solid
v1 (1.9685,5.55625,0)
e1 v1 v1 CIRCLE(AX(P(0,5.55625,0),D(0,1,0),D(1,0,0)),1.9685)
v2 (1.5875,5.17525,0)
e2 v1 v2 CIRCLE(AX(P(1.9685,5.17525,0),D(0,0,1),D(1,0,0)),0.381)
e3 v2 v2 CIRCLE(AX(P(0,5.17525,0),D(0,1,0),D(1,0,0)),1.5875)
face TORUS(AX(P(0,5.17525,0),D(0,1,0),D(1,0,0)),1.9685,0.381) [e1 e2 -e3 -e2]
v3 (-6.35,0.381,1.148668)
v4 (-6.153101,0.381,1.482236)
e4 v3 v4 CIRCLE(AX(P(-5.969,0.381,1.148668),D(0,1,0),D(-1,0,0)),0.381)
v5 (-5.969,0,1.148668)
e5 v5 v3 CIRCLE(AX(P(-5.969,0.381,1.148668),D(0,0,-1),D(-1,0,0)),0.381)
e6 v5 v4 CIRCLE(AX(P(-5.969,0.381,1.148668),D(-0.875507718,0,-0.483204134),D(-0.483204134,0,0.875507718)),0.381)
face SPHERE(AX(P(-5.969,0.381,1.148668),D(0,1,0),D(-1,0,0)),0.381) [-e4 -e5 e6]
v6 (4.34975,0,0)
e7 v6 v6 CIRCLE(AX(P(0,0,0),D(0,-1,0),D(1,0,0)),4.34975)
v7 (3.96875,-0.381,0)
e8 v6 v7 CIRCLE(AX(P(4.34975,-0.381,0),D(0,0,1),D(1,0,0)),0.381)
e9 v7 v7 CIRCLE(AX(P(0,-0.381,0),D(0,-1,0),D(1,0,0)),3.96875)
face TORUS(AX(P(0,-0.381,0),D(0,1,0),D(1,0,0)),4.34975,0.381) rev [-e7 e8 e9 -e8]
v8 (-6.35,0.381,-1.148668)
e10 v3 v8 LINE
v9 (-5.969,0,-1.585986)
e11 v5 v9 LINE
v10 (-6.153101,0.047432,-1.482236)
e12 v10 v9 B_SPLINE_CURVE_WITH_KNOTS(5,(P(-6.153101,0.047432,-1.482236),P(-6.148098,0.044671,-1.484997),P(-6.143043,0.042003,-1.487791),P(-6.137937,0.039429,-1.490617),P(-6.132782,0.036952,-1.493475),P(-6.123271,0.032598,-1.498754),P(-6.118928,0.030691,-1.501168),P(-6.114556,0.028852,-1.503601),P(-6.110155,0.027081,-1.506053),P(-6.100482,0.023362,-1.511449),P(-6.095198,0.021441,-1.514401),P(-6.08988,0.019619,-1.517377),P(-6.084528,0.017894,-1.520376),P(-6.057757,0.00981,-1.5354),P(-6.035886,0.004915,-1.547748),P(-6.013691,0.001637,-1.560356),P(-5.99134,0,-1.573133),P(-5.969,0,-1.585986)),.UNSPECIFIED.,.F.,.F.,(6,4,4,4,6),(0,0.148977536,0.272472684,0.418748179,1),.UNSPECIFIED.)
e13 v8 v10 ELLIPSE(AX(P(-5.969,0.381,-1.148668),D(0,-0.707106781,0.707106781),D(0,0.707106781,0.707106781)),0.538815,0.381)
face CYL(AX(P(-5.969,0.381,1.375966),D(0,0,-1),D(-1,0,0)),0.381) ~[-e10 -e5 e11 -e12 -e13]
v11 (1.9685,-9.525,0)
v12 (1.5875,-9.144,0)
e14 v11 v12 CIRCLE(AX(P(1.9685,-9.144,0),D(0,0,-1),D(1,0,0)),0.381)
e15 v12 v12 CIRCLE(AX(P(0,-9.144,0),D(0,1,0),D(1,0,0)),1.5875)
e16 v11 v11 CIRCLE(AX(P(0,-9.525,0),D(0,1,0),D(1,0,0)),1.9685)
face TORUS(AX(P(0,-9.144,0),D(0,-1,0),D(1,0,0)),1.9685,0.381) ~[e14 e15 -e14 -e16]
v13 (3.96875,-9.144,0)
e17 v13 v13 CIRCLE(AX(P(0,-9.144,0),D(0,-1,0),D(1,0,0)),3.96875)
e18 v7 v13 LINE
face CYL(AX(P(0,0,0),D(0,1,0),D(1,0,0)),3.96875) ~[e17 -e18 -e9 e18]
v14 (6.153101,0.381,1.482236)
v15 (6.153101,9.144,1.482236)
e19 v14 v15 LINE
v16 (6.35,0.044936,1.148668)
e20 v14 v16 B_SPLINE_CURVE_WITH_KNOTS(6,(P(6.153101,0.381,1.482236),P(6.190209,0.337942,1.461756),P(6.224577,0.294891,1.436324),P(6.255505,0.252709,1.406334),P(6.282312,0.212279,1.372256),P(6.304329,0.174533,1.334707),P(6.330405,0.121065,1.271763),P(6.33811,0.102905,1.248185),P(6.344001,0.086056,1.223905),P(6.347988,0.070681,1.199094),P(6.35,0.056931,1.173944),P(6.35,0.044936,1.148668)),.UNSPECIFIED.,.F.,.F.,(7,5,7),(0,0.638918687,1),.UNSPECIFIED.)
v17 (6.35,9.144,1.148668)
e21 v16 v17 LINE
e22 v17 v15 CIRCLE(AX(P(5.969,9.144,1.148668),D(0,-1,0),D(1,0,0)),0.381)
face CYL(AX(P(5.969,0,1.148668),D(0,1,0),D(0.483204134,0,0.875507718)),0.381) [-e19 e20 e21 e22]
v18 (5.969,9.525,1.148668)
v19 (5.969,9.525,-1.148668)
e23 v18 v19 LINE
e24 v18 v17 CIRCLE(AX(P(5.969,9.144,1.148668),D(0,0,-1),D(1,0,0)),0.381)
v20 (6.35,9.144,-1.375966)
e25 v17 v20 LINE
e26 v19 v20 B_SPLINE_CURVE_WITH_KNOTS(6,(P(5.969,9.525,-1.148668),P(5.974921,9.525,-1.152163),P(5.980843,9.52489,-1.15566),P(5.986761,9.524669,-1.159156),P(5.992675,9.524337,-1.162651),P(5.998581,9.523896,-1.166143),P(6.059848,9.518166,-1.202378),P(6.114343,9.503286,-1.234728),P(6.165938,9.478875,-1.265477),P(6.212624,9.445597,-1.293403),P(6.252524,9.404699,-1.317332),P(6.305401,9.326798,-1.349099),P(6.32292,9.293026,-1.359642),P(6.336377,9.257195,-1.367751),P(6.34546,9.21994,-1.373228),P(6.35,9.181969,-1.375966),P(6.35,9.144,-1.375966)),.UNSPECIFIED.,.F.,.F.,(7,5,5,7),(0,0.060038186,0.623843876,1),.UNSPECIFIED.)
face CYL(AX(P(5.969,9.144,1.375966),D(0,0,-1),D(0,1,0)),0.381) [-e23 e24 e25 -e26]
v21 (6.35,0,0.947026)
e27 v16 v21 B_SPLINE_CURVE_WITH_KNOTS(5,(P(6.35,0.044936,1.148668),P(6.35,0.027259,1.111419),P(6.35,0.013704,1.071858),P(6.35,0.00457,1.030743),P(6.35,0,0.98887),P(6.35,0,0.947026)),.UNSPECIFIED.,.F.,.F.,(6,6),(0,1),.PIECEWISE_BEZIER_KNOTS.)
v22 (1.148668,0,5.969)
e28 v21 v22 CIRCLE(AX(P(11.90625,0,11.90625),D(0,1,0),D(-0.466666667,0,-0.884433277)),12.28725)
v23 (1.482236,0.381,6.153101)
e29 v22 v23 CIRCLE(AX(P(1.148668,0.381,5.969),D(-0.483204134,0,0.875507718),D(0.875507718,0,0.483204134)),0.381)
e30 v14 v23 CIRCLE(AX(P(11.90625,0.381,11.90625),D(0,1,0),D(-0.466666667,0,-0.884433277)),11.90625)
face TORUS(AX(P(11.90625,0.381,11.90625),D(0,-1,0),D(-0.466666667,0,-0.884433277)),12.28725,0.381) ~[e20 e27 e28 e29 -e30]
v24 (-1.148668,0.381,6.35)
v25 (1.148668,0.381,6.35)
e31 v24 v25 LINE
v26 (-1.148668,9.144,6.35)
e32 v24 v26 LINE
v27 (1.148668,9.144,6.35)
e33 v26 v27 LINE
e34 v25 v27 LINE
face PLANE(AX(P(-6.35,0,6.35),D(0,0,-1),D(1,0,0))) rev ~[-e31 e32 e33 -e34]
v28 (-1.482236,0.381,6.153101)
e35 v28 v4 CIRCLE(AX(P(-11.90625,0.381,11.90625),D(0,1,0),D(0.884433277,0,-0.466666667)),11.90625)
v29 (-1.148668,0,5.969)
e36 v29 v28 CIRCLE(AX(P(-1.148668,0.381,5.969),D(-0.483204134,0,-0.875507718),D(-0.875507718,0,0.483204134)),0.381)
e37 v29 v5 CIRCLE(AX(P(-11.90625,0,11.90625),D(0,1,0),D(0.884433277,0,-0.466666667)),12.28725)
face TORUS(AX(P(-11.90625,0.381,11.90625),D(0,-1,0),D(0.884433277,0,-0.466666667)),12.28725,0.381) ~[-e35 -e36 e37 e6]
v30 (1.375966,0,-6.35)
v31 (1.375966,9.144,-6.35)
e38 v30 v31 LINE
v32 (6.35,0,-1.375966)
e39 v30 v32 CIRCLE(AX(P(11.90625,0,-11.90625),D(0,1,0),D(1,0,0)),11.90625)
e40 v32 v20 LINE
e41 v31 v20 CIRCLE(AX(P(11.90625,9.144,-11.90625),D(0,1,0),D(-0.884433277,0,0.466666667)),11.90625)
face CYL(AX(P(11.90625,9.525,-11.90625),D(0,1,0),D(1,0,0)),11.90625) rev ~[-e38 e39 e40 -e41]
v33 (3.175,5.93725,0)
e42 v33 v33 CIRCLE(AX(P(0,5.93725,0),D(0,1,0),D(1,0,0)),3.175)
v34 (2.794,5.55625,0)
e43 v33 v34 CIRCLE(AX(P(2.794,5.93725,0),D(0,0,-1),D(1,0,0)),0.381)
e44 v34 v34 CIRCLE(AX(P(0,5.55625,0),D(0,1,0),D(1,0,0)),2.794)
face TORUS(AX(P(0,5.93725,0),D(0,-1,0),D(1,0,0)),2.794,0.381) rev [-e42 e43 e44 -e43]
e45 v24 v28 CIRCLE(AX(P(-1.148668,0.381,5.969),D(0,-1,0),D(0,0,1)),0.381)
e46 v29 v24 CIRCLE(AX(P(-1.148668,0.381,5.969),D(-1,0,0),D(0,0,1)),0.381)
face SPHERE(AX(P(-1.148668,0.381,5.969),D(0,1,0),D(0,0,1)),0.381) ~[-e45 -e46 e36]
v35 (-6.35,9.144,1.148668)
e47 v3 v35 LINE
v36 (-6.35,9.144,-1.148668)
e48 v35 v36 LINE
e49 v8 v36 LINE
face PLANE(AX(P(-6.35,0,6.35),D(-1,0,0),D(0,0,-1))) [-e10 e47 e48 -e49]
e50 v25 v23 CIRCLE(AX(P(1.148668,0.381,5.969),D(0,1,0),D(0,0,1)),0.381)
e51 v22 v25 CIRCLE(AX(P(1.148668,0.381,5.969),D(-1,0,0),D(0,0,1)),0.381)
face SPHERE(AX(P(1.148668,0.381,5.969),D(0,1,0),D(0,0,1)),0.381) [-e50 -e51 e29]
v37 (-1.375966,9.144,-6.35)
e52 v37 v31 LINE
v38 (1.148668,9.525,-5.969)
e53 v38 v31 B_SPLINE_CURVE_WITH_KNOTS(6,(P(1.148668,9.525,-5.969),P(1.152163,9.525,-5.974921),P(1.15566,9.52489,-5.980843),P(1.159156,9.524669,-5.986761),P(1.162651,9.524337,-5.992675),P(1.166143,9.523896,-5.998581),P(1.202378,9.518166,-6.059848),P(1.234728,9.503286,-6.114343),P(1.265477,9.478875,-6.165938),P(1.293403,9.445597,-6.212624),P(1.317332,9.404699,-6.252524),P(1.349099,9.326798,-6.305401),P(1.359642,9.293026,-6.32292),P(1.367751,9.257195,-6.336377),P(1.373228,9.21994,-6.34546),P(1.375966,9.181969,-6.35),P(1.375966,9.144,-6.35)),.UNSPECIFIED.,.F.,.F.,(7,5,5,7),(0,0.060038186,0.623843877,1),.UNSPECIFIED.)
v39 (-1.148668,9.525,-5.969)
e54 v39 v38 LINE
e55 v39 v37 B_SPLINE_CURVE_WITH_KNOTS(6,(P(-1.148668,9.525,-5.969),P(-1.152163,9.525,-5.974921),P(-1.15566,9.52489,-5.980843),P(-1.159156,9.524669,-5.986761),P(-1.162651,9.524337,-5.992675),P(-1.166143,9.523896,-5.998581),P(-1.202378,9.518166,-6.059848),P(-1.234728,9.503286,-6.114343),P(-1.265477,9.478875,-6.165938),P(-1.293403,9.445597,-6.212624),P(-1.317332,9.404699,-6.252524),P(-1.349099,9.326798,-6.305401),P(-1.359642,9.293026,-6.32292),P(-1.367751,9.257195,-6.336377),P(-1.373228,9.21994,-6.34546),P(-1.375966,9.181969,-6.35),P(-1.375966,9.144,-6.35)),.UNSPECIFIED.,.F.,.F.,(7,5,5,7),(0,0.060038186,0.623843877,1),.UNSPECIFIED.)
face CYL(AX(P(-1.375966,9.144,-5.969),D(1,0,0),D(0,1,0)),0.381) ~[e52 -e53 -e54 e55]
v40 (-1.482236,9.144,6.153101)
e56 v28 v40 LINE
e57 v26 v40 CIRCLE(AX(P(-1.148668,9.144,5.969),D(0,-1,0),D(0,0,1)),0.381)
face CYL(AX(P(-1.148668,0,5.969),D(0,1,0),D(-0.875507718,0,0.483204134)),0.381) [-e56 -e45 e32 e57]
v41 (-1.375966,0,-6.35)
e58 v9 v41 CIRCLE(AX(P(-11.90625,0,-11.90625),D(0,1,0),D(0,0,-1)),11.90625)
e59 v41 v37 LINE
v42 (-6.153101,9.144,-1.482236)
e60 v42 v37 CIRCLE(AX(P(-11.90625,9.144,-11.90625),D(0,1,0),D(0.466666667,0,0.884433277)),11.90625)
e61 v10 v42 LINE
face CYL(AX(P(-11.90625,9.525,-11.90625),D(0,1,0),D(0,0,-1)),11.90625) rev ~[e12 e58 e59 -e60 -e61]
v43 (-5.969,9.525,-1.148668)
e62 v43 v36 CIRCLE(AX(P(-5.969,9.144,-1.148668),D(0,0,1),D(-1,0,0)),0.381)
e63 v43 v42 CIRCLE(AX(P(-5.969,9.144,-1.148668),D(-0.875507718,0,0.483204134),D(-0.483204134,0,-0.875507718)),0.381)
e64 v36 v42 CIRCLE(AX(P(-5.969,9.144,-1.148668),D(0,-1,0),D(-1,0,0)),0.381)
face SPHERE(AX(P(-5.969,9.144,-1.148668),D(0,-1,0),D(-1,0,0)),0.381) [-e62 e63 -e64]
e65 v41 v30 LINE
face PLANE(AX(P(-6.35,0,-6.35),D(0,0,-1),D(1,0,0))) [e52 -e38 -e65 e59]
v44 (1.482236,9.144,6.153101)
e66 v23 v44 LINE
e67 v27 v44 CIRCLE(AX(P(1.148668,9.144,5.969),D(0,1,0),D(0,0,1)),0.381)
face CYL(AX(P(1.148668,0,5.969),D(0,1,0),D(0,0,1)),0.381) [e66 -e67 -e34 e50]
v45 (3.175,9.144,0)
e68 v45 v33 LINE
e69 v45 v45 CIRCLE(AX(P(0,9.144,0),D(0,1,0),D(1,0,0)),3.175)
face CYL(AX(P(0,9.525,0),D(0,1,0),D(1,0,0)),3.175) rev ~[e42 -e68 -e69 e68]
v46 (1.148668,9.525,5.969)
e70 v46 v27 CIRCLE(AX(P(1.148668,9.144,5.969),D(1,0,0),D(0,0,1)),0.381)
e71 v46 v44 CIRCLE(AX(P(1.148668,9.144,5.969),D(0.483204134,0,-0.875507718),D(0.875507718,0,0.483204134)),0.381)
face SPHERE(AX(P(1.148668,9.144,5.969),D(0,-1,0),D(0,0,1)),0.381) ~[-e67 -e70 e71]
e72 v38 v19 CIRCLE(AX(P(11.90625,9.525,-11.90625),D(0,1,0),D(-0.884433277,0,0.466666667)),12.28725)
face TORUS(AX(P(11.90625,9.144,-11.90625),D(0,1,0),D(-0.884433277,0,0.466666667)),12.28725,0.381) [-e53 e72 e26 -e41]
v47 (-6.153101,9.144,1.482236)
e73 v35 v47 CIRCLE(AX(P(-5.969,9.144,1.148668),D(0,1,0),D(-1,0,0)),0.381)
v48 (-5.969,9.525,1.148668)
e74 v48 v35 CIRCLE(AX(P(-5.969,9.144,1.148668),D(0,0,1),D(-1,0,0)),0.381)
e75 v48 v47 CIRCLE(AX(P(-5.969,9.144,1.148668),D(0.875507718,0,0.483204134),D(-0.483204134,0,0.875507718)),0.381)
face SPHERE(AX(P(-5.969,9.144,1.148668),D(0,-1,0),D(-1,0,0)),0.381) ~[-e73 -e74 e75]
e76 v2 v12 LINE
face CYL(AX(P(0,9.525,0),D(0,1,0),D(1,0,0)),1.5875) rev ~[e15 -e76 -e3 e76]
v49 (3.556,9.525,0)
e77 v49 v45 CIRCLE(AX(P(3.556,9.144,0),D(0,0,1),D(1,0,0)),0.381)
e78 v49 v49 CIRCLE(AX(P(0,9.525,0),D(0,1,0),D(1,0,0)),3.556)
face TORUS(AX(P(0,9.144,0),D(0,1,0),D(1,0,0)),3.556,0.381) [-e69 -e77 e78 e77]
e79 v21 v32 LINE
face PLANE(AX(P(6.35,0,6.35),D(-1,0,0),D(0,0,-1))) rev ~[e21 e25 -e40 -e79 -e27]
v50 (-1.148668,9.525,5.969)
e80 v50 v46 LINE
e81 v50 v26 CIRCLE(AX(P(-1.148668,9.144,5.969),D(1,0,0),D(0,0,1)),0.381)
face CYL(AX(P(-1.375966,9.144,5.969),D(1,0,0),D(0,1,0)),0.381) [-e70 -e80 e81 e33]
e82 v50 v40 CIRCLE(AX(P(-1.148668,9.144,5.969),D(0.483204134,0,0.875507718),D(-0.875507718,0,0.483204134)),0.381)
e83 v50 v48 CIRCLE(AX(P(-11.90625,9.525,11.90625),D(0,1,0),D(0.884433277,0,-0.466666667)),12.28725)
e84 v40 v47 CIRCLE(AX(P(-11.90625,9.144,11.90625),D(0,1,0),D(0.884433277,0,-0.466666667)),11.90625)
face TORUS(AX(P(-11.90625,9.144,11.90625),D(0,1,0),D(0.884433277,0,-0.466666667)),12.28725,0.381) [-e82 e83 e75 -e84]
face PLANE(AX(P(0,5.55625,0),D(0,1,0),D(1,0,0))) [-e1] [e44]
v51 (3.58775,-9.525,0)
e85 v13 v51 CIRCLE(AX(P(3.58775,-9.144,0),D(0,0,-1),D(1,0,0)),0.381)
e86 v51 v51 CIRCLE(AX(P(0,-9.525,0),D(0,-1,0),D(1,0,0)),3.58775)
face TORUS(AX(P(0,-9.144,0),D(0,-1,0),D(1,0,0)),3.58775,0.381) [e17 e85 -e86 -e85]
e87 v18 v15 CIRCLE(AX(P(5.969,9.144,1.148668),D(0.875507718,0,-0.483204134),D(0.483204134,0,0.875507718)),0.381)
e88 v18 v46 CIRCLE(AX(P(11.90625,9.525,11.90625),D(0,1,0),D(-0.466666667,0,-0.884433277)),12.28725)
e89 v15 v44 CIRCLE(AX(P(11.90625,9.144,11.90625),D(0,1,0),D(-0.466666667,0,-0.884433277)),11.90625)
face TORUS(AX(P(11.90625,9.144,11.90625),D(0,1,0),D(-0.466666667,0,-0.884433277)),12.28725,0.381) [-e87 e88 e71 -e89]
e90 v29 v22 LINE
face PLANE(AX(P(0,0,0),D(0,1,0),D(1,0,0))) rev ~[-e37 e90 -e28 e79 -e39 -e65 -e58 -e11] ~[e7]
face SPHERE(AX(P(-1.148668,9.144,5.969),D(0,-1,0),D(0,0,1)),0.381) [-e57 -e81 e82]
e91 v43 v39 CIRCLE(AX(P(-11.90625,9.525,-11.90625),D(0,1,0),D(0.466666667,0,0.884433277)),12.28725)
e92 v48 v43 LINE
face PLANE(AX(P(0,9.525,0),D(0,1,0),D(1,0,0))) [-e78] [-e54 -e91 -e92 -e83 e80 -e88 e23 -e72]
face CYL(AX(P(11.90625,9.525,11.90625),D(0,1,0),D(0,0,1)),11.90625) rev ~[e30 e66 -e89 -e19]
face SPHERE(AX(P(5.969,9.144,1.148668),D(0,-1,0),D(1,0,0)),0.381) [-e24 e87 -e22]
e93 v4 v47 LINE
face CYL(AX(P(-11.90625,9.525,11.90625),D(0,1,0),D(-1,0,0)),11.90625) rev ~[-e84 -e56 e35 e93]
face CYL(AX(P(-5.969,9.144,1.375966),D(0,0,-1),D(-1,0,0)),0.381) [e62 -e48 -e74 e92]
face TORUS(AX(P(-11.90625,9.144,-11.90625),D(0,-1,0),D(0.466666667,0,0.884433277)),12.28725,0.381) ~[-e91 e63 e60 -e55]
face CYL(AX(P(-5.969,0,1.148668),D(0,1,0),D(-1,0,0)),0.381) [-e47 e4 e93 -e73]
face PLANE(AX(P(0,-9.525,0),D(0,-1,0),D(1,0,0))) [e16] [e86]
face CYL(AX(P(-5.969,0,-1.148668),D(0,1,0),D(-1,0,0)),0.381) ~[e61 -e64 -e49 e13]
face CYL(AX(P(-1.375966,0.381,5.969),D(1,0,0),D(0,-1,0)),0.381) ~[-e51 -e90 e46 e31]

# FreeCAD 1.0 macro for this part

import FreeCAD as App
import Part
import Sketcher
Q = App.Units.Quantity


def edges_at(feature, points):
    """Names of the edges that pass closest to the given points."""
    edges = feature.Shape.Edges
    near = lambda p: min(range(len(edges)), key=lambda i: edges[i].distToShape(Part.Vertex(*p))[0])
    return sorted({f"Edge{near(p) + 1}" for p in points})

doc = App.newDocument("Part")
body = doc.addObject("PartDesign::Body", "Body")

# Sketch on XZ plane
sketch1 = body.newObject("Sketcher::SketchObject", "Sketch")
sketch1.AttachmentSupport = (doc.getObject("XZ_Plane"), [""])
sketch1.MapMode = "FlatFace"
sketch1.addGeometry(Part.LineSegment(App.Vector(-6, -6, 0), App.Vector(-6, 6, 0)), False)
sketch1.addGeometry(Part.LineSegment(App.Vector(-6, 6, 0), App.Vector(6, 6, 0)), False)
sketch1.addGeometry(Part.LineSegment(App.Vector(6, 6, 0), App.Vector(6, -6, 0)), False)
sketch1.addGeometry(Part.LineSegment(App.Vector(6, -6, 0), App.Vector(-6, -6, 0)), False)
sketch1.addConstraint(Sketcher.Constraint("Coincident", 0, 2, 1, 1))
sketch1.addConstraint(Sketcher.Constraint("Coincident", 1, 2, 2, 1))
sketch1.addConstraint(Sketcher.Constraint("Coincident", 2, 2, 3, 1))
sketch1.addConstraint(Sketcher.Constraint("Coincident", 3, 2, 0, 1))
sketch1.addConstraint(Sketcher.Constraint("Vertical", 0))
sketch1.addConstraint(Sketcher.Constraint("Horizontal", 1))
sketch1.addConstraint(Sketcher.Constraint("Vertical", 2))
sketch1.addConstraint(Sketcher.Constraint("Horizontal", 3))
sketch1.addConstraint(Sketcher.Constraint("Symmetric", 0, 2, 2, 2, -1, 1))
sketch1.addConstraint(Sketcher.Constraint("Equal", 3, 0))
sketch1.addConstraint(Sketcher.Constraint("DistanceX", 1, 1, 1, 2, Q("0.5 in")))
pad1 = body.newObject("PartDesign::Pad", "Pad")
pad1.Profile = sketch1
pad1.Length = Q("0.375 in")
pad1.Reversed = True

# Sketch on XZ plane
sketch2 = body.newObject("Sketcher::SketchObject", "Sketch001")
sketch2.AttachmentSupport = (doc.getObject("XZ_Plane"), [""])
sketch2.MapMode = "FlatFace"
sketch2.AttachmentOffset = App.Placement(App.Vector(0, 0, -0.375 * 25.4), App.Rotation())
sketch2.addGeometry(Part.Circle(App.Vector(12, -12, 0), App.Vector(0, 0, 1), 12), False)
sketch2.addConstraint(Sketcher.Constraint("Diameter", 0, Q("0.9375 in")))
sketch2.addConstraint(Sketcher.Constraint("DistanceX", -1, 1, 0, 3, Q("0.46875 in")))
sketch2.addConstraint(Sketcher.Constraint("DistanceY", 0, 3, -1, 1, Q("0.46875 in")))
pocket1 = body.newObject("PartDesign::Pocket", "Pocket")
pocket1.Profile = sketch2
pocket1.Type = "ThroughAll"
pocket1.Reversed = True
doc.recompute()

polarpattern = body.newObject("PartDesign::PolarPattern", "PolarPattern")
polarpattern.Originals = [pocket1]
polarpattern.Axis = (doc.getObject("Y_Axis"), [""])
polarpattern.Angle = 360
polarpattern.Occurrences = 4
body.Tip = polarpattern

# Sketch on XZ plane
sketch3 = body.newObject("Sketcher::SketchObject", "Sketch002")
sketch3.AttachmentSupport = (doc.getObject("XZ_Plane"), [""])
sketch3.MapMode = "FlatFace"
sketch3.addGeometry(Part.Circle(App.Vector(0, 0, 0), App.Vector(0, 0, 1), 4), False)
sketch3.addConstraint(Sketcher.Constraint("Coincident", 0, 3, -1, 1))
sketch3.addConstraint(Sketcher.Constraint("Diameter", 0, Q("0.3125 in")))
pad2 = body.newObject("PartDesign::Pad", "Pad001")
pad2.Profile = sketch3
pad2.Length = Q("0.375 in")

# Sketch on XZ plane
sketch4 = body.newObject("Sketcher::SketchObject", "Sketch003")
sketch4.AttachmentSupport = (doc.getObject("XZ_Plane"), [""])
sketch4.MapMode = "FlatFace"
sketch4.AttachmentOffset = App.Placement(App.Vector(0, 0, -0.375 * 25.4), App.Rotation())
sketch4.addGeometry(Part.Circle(App.Vector(0, 0, 0), App.Vector(0, 0, 1), 1.6), False)
sketch4.addConstraint(Sketcher.Constraint("Coincident", 0, 3, -1, 1))
sketch4.addConstraint(Sketcher.Constraint("Diameter", 0, Q("0.125 in")))
pocket2 = body.newObject("PartDesign::Pocket", "Pocket001")
pocket2.Profile = sketch4
pocket2.Type = "ThroughAll"
pocket2.Reversed = True

# Sketch on XZ plane
sketch5 = body.newObject("Sketcher::SketchObject", "Sketch004")
sketch5.AttachmentSupport = (doc.getObject("XZ_Plane"), [""])
sketch5.MapMode = "FlatFace"
sketch5.AttachmentOffset = App.Placement(App.Vector(0, 0, -0.375 * 25.4), App.Rotation())
sketch5.addGeometry(Part.Circle(App.Vector(0, 0, 0), App.Vector(0, 0, 1), 3.2), False)
sketch5.addConstraint(Sketcher.Constraint("Coincident", 0, 3, -1, 1))
sketch5.addConstraint(Sketcher.Constraint("Diameter", 0, Q("0.25 in")))
pocket3 = body.newObject("PartDesign::Pocket", "Pocket002")
pocket3.Profile = sketch5
pocket3.Length = Q("0.15625 in")
pocket3.Reversed = True
doc.recompute()

fillet = body.newObject("PartDesign::Fillet", "Fillet")
fillet.Base = (pocket3, edges_at(pocket3, [
    (0, 9.525, -6.35),
    (3.487, 9.525, -3.487),
    (6.35, 9.525, 0),
    (3.487, 9.525, 3.487),
    (6.35, 4.763, 1.376),
    (3.487, 0, 3.487),
    (1.376, 4.763, 6.35),
    (0, 0, 6.35),
    (0, 9.525, 6.35),
    (-3.487, 9.525, 3.487),
    (-3.487, 0, 3.487),
    (-6.35, 4.763, 1.376),
    (-1.376, 4.763, 6.35),
    (-6.35, 0, 0),
    (-6.35, 9.525, 0),
    (-3.487, 9.525, -3.487),
    (-6.35, 4.763, -1.376),
    (-3.969, 0, 0),
    (-3.969, -9.525, 0),
    (-1.587, -9.525, 0),
    (-3.175, 9.525, 0),
    (-3.175, 5.556, 0),
    (-1.587, 5.556, 0),
]))
fillet.Radius = Q("0.015 in")

doc.recompute()
